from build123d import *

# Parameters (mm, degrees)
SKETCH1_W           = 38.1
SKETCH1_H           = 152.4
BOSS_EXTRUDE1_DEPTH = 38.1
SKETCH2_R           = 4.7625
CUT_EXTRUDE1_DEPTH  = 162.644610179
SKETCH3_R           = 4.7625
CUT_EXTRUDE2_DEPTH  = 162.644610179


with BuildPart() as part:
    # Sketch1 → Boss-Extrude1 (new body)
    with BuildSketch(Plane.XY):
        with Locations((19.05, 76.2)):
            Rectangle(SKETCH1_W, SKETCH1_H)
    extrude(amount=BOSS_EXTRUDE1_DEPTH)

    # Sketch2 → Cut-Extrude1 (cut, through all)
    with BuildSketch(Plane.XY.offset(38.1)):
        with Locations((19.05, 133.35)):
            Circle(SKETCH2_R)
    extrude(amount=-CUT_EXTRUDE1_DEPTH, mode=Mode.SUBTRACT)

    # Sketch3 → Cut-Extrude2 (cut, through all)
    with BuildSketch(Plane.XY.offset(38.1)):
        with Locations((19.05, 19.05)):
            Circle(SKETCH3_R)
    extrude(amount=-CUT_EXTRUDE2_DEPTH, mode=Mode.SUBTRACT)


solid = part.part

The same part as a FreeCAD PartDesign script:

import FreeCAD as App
import Part
import Sketcher
Q = App.Units.Quantity

doc = App.newDocument("Part")
body = doc.addObject("PartDesign::Body", "Body")

# Sketch on XY plane
sketch1 = body.newObject("Sketcher::SketchObject", "Sketch")
sketch1.AttachmentSupport = (doc.getObject("XY_Plane"), [""])
sketch1.MapMode = "FlatFace"
sketch1.addGeometry(Part.LineSegment(App.Vector(0, 152.4, 0), App.Vector(0, 0, 0)), False)
sketch1.addGeometry(Part.LineSegment(App.Vector(0, 0, 0), App.Vector(38.1, 0, 0)), False)
sketch1.addGeometry(Part.LineSegment(App.Vector(38.1, 0, 0), App.Vector(38.1, 152.4, 0)), False)
sketch1.addGeometry(Part.LineSegment(App.Vector(38.1, 152.4, 0), App.Vector(0, 152.4, 0)), False)
sketch1.addConstraint(Sketcher.Constraint("Coincident", 0, 2, 1, 1))
sketch1.addConstraint(Sketcher.Constraint("Coincident", 1, 2, 2, 1))
sketch1.addConstraint(Sketcher.Constraint("Coincident", 2, 2, 3, 1))
sketch1.addConstraint(Sketcher.Constraint("Coincident", 3, 2, 0, 1))
sketch1.addConstraint(Sketcher.Constraint("Vertical", 0))
sketch1.addConstraint(Sketcher.Constraint("Horizontal", 1))
sketch1.addConstraint(Sketcher.Constraint("Vertical", 2))
sketch1.addConstraint(Sketcher.Constraint("Horizontal", 3))
sketch1.addConstraint(Sketcher.Constraint("Coincident", 0, 2, -1, 1))
sketch1.addConstraint(Sketcher.Constraint("DistanceY", 0, 2, 0, 1, Q("6 in")))
sketch1.addConstraint(Sketcher.Constraint("DistanceX", 1, 1, 1, 2, Q("1.5 in")))
pad1 = body.newObject("PartDesign::Pad", "Pad")
pad1.Profile = sketch1
pad1.Length = Q("1.5 in")

# Sketch on XY plane
sketch2 = body.newObject("Sketcher::SketchObject", "Sketch001")
sketch2.AttachmentSupport = (doc.getObject("XY_Plane"), [""])
sketch2.MapMode = "FlatFace"
sketch2.AttachmentOffset = App.Placement(App.Vector(0, 0, 1.5 * 25.4), App.Rotation())
sketch2.addGeometry(Part.Circle(App.Vector(19.05, 133.35, 0), App.Vector(0, 0, 1), 4.7625), False)
sketch2.addConstraint(Sketcher.Constraint("Diameter", 0, Q("0.375 in")))
sketch2.addConstraint(Sketcher.Constraint("DistanceX", -1, 1, 0, 3, Q("0.75 in")))
sketch2.addConstraint(Sketcher.Constraint("DistanceY", -1, 1, 0, 3, Q("5.25 in")))
pocket1 = body.newObject("PartDesign::Pocket", "Pocket")
pocket1.Profile = sketch2
pocket1.Type = "ThroughAll"

# Sketch on XY plane
sketch3 = body.newObject("Sketcher::SketchObject", "Sketch002")
sketch3.AttachmentSupport = (doc.getObject("XY_Plane"), [""])
sketch3.MapMode = "FlatFace"
sketch3.AttachmentOffset = App.Placement(App.Vector(0, 0, 1.5 * 25.4), App.Rotation())
sketch3.addGeometry(Part.Circle(App.Vector(19.05, 19.05, 0), App.Vector(0, 0, 1), 4.7625), False)
sketch3.addConstraint(Sketcher.Constraint("Diameter", 0, Q("0.375 in")))
sketch3.addConstraint(Sketcher.Constraint("DistanceX", -1, 1, 0, 3, Q("0.75 in")))
sketch3.addConstraint(Sketcher.Constraint("DistanceY", -1, 1, 0, 3, Q("0.75 in")))
pocket2 = body.newObject("PartDesign::Pocket", "Pocket001")
pocket2.Profile = sketch3
pocket2.Type = "ThroughAll"

doc.recompute()
